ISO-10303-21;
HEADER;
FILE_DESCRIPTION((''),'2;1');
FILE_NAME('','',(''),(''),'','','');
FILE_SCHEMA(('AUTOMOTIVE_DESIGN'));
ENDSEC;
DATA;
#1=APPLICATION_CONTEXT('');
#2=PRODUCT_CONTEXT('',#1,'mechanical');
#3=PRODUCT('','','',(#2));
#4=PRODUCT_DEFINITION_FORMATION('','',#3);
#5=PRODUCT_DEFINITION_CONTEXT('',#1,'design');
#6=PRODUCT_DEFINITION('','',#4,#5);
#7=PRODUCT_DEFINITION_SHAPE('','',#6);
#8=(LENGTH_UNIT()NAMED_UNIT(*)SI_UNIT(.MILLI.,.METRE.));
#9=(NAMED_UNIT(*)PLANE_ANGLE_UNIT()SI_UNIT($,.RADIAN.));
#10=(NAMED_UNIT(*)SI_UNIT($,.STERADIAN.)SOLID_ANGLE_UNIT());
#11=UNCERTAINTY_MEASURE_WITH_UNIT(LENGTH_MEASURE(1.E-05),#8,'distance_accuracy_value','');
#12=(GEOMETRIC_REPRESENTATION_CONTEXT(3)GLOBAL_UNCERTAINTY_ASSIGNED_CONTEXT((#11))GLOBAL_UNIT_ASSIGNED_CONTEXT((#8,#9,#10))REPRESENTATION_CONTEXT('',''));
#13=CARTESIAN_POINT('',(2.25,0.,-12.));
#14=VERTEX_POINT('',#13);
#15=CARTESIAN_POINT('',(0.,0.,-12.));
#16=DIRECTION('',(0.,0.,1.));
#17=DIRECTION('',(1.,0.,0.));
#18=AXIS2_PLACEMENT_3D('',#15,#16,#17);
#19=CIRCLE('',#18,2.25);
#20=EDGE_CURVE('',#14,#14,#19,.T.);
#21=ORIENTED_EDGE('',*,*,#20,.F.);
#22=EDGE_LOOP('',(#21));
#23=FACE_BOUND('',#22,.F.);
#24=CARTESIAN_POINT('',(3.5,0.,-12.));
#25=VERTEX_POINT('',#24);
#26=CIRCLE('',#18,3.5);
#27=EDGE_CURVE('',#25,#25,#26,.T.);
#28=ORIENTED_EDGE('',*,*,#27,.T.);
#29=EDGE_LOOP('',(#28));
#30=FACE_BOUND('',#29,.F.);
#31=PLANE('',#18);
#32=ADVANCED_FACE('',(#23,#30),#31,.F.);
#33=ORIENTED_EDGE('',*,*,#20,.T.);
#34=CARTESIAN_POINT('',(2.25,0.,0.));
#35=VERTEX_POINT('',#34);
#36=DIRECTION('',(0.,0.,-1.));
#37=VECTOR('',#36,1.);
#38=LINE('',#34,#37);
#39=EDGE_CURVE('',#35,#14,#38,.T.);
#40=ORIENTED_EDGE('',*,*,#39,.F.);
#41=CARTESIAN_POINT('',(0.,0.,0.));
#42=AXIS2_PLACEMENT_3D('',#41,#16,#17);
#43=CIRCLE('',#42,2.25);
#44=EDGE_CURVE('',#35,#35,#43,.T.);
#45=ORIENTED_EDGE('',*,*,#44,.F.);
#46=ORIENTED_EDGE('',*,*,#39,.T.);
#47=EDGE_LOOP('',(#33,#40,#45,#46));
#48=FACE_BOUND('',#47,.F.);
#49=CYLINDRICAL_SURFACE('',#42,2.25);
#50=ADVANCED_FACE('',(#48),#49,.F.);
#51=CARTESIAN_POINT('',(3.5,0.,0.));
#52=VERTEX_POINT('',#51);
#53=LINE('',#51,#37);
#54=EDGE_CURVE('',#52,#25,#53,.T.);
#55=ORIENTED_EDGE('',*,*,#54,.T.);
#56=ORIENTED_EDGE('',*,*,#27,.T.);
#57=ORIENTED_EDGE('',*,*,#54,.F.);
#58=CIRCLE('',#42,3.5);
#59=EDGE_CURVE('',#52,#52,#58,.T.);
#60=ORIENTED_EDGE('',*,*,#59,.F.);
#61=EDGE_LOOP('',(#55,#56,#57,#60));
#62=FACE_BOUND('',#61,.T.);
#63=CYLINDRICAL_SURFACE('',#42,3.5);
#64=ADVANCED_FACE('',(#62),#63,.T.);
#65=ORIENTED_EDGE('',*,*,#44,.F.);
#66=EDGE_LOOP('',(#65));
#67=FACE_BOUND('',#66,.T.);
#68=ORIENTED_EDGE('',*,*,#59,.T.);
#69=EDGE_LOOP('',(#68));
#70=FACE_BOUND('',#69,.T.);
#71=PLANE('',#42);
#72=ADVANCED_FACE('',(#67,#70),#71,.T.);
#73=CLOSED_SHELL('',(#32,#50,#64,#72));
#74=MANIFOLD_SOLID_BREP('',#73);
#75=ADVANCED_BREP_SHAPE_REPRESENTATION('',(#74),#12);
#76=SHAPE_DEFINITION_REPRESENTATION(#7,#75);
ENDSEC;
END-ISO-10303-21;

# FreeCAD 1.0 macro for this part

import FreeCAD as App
import Part
import Sketcher
from FreeCAD import Vector

doc = App.newDocument("Part")
body = doc.addObject("PartDesign::Body", "Body")

sketch1 = body.newObject("Sketcher::SketchObject", "Sketch")
sketch1.AttachmentSupport = (doc.getObject("XY_Plane"), [""])
sketch1.MapMode = "FlatFace"
sketch1.addGeometry([
    Part.Circle(Vector(0, 0, 0), Vector(0, 0, 1), 3.5),
    Part.Circle(Vector(0, 0, 0), Vector(0, 0, 1), 2.25),
], False)
sketch1.addConstraint([
    Sketcher.Constraint("Coincident", 0, 3, -1, 1),
    Sketcher.Constraint("Coincident", 1, 3, -1, 1),
    Sketcher.Constraint("Diameter", 0, 7.0),
    Sketcher.Constraint("Diameter", 1, 4.5),
])
pad1 = body.newObject("PartDesign::Pad", "Pad")
pad1.Profile = sketch1
pad1.Length = 12
pad1.Reversed = True

doc.recompute()
